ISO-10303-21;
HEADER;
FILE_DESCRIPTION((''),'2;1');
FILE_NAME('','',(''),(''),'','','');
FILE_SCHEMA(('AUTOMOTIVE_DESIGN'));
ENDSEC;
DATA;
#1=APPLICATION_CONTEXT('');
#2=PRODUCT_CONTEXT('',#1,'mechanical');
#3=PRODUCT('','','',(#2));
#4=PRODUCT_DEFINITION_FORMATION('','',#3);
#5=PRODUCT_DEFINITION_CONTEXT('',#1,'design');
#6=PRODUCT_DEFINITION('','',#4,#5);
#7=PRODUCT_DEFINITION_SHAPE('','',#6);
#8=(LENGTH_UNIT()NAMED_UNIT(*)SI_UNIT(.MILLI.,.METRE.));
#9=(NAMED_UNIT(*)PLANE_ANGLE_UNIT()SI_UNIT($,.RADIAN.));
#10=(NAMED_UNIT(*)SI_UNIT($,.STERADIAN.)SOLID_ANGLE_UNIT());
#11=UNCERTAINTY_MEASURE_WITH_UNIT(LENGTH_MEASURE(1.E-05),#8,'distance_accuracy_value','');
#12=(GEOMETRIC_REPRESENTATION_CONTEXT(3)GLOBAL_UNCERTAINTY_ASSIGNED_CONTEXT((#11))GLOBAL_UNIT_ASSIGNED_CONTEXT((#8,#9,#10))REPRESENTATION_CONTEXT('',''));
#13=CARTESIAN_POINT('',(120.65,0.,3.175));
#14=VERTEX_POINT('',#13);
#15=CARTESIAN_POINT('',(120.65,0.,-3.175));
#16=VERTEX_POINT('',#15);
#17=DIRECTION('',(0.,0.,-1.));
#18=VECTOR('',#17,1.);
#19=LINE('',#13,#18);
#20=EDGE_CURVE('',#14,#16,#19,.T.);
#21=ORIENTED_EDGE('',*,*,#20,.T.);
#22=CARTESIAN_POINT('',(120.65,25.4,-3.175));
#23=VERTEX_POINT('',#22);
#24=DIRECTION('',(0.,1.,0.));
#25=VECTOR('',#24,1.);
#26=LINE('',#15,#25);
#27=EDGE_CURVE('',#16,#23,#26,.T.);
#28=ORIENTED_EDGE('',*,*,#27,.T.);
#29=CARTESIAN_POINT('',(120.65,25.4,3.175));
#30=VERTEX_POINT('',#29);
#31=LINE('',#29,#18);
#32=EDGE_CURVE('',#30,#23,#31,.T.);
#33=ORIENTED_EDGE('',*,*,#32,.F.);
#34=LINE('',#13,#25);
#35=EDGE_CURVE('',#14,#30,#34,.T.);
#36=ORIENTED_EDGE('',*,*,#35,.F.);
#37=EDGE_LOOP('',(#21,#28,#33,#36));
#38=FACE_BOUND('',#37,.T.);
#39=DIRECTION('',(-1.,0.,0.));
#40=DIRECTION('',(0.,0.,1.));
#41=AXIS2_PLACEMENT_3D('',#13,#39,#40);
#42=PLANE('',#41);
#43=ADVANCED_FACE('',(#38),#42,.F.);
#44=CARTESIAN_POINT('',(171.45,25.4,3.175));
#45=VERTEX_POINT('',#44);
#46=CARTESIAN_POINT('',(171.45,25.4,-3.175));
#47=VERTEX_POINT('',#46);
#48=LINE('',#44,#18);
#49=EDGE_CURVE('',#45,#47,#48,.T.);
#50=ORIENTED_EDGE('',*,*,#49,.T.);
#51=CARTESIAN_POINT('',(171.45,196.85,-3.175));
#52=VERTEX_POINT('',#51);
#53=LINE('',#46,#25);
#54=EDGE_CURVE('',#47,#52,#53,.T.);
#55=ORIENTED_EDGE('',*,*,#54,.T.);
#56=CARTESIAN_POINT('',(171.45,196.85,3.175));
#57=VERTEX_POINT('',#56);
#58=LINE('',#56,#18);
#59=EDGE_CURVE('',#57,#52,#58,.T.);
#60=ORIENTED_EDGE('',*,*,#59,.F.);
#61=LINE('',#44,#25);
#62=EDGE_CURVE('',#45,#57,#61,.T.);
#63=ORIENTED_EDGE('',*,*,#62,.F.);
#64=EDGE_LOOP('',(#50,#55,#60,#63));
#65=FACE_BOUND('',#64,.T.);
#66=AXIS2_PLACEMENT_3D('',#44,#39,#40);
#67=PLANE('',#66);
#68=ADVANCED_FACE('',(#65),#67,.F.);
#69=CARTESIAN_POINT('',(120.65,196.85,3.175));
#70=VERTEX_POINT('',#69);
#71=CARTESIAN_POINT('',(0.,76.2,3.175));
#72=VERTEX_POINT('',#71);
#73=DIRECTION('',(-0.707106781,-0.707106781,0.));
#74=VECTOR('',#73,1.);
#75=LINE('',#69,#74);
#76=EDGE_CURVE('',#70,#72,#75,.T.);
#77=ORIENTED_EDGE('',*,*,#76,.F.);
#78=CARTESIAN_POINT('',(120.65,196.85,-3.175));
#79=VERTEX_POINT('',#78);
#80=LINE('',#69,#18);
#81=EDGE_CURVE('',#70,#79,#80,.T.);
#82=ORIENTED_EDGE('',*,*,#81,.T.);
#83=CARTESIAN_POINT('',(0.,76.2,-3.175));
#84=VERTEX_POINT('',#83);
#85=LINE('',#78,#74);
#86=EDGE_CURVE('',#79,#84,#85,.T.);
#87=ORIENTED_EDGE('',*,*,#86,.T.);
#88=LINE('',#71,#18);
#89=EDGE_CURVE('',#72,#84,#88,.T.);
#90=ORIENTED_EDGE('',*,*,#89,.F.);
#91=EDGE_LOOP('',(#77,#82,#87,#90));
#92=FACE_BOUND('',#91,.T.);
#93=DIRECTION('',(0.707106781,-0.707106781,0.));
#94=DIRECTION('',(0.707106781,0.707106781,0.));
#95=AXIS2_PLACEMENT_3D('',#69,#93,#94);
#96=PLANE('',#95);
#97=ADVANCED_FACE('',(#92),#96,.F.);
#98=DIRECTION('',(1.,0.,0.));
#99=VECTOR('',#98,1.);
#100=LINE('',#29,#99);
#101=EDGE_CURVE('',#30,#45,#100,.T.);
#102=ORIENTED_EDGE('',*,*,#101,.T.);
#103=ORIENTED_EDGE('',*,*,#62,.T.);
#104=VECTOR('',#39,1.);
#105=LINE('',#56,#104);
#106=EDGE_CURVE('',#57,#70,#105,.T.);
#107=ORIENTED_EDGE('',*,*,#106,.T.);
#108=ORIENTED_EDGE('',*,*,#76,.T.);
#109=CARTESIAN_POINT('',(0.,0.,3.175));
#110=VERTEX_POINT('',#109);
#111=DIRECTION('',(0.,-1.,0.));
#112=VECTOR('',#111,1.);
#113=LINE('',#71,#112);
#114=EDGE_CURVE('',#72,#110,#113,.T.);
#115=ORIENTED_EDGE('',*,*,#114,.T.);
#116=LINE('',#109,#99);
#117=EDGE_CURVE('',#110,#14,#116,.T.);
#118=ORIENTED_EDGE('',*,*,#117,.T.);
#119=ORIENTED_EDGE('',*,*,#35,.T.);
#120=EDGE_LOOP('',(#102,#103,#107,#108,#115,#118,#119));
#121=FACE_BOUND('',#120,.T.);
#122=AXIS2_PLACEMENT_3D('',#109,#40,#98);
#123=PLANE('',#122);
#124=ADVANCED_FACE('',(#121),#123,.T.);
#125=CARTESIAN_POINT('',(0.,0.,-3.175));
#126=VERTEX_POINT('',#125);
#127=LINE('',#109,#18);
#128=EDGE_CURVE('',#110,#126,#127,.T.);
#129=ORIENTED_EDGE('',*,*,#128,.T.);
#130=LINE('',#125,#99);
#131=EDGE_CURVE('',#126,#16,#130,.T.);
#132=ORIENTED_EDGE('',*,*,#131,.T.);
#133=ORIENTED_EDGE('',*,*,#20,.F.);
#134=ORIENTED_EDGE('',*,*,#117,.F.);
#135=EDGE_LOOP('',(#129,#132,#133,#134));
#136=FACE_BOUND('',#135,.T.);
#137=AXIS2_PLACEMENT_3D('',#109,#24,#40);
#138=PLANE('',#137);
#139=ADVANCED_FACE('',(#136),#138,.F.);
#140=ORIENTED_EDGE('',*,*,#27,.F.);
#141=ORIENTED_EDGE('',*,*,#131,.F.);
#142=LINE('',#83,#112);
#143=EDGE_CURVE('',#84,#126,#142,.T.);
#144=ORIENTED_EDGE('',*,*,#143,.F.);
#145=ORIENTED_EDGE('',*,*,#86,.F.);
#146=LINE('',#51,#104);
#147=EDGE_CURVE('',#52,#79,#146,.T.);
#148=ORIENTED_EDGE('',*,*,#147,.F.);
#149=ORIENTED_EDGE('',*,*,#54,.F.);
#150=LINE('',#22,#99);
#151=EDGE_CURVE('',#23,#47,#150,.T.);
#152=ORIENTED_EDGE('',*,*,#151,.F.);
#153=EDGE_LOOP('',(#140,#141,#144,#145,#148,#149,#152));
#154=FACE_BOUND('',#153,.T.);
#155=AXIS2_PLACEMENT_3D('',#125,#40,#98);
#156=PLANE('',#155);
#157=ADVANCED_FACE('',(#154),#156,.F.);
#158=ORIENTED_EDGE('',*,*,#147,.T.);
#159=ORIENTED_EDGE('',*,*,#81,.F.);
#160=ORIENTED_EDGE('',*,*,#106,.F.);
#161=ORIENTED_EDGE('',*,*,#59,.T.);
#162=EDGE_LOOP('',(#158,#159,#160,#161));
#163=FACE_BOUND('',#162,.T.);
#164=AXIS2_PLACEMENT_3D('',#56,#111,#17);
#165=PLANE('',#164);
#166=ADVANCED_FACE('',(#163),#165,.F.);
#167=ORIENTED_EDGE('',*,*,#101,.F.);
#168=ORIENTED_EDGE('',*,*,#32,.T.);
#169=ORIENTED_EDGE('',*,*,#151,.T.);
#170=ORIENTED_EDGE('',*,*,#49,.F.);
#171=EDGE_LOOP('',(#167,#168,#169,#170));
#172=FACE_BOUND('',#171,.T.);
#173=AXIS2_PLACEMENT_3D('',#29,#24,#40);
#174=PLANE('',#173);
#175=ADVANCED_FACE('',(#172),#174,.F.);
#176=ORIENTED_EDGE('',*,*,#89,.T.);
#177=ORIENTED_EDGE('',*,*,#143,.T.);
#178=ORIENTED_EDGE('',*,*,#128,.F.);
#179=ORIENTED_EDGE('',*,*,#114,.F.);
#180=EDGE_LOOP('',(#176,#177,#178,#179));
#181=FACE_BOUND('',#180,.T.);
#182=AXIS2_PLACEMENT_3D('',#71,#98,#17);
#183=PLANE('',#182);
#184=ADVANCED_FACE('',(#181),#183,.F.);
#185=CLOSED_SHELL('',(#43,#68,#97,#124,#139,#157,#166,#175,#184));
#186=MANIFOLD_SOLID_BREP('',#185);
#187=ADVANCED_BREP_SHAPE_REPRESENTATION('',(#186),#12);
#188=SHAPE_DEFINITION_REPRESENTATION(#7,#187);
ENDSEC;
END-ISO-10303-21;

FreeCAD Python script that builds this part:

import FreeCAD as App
import Part
import Sketcher

V = App.Vector
Q = App.Units.Quantity

doc = App.newDocument("Part")
params = doc.addObject("Spreadsheet::Sheet", "Params")
for row, (alias, value) in enumerate([
    ("sketch1_width", "2 in"),
    ("sketch1_height", "1 in"),
    ("sketch1_height2", "3 in"),
    ("sketch1_width2", "4.75 in"),
    ("pad1_length", "0.25 in"),
], start=1):
    params.set(f"A{row}", alias)
    params.set(f"B{row}", "=" + value)
    params.setAlias(f"B{row}", alias)

body = doc.addObject("PartDesign::Body", "Body")

sketch1 = body.newObject("Sketcher::SketchObject", "Sketch")
sketch1.AttachmentSupport = (doc.getObject("XY_Plane"), [""])
sketch1.MapMode = "FlatFace"
sketch1.addGeometry(Part.LineSegment(V(0, 0, 0), V(120.65, 0, 0)), False)
sketch1.addGeometry(Part.LineSegment(V(120.65, 0, 0), V(120.65, 25.4, 0)), False)
sketch1.addGeometry(Part.LineSegment(V(120.65, 25.4, 0), V(171.45, 25.4, 0)), False)
sketch1.addGeometry(Part.LineSegment(V(171.45, 25.4, 0), V(171.45, 196.85, 0)), False)
sketch1.addGeometry(Part.LineSegment(V(171.45, 196.85, 0), V(120.65, 196.85, 0)), False)
sketch1.addGeometry(Part.LineSegment(V(120.65, 196.85, 0), V(0, 76.2, 0)), False)
sketch1.addGeometry(Part.LineSegment(V(0, 76.2, 0), V(0, 0, 0)), False)
sketch1.addConstraint(Sketcher.Constraint("Coincident", 0, 2, 1, 1))
sketch1.addConstraint(Sketcher.Constraint("Coincident", 1, 2, 2, 1))
sketch1.addConstraint(Sketcher.Constraint("Coincident", 2, 2, 3, 1))
sketch1.addConstraint(Sketcher.Constraint("Coincident", 3, 2, 4, 1))
sketch1.addConstraint(Sketcher.Constraint("Coincident", 4, 2, 5, 1))
sketch1.addConstraint(Sketcher.Constraint("Coincident", 5, 2, 6, 1))
sketch1.addConstraint(Sketcher.Constraint("Coincident", 6, 2, 0, 1))
sketch1.addConstraint(Sketcher.Constraint("Horizontal", 0))
sketch1.addConstraint(Sketcher.Constraint("Vertical", 1))
sketch1.addConstraint(Sketcher.Constraint("Horizontal", 2))
sketch1.addConstraint(Sketcher.Constraint("Vertical", 3))
sketch1.addConstraint(Sketcher.Constraint("Horizontal", 4))
sketch1.addConstraint(Sketcher.Constraint("Vertical", 6))
sketch1.addConstraint(Sketcher.Constraint("Coincident", 6, 2, -1, 1))
sketch1.addConstraint(Sketcher.Constraint("Vertical", 1, 2, 4, 2))
sketch1.addConstraint(Sketcher.Constraint("DistanceX", 2, 1, 2, 2, Q("2 in")))
sketch1.addConstraint(Sketcher.Constraint("DistanceY", 1, 1, 1, 2, Q("1 in")))
sketch1.addConstraint(Sketcher.Constraint("DistanceY", 6, 2, 6, 1, Q("3 in")))
sketch1.addConstraint(Sketcher.Constraint("Angle", 5, Q("-135 deg")))
sketch1.addConstraint(Sketcher.Constraint("DistanceX", 0, 1, 0, 2, Q("4.75 in")))
sketch1.setExpression("Constraints[15]", "Params.sketch1_width")
sketch1.setExpression("Constraints[16]", "Params.sketch1_height")
sketch1.setExpression("Constraints[17]", "Params.sketch1_height2")
sketch1.setExpression("Constraints[19]", "Params.sketch1_width2")
pad1 = body.newObject("PartDesign::Pad", "Pad")
pad1.Profile = sketch1
pad1.setExpression("Length", "Params.pad1_length")
pad1.Midplane = True

doc.recompute()
